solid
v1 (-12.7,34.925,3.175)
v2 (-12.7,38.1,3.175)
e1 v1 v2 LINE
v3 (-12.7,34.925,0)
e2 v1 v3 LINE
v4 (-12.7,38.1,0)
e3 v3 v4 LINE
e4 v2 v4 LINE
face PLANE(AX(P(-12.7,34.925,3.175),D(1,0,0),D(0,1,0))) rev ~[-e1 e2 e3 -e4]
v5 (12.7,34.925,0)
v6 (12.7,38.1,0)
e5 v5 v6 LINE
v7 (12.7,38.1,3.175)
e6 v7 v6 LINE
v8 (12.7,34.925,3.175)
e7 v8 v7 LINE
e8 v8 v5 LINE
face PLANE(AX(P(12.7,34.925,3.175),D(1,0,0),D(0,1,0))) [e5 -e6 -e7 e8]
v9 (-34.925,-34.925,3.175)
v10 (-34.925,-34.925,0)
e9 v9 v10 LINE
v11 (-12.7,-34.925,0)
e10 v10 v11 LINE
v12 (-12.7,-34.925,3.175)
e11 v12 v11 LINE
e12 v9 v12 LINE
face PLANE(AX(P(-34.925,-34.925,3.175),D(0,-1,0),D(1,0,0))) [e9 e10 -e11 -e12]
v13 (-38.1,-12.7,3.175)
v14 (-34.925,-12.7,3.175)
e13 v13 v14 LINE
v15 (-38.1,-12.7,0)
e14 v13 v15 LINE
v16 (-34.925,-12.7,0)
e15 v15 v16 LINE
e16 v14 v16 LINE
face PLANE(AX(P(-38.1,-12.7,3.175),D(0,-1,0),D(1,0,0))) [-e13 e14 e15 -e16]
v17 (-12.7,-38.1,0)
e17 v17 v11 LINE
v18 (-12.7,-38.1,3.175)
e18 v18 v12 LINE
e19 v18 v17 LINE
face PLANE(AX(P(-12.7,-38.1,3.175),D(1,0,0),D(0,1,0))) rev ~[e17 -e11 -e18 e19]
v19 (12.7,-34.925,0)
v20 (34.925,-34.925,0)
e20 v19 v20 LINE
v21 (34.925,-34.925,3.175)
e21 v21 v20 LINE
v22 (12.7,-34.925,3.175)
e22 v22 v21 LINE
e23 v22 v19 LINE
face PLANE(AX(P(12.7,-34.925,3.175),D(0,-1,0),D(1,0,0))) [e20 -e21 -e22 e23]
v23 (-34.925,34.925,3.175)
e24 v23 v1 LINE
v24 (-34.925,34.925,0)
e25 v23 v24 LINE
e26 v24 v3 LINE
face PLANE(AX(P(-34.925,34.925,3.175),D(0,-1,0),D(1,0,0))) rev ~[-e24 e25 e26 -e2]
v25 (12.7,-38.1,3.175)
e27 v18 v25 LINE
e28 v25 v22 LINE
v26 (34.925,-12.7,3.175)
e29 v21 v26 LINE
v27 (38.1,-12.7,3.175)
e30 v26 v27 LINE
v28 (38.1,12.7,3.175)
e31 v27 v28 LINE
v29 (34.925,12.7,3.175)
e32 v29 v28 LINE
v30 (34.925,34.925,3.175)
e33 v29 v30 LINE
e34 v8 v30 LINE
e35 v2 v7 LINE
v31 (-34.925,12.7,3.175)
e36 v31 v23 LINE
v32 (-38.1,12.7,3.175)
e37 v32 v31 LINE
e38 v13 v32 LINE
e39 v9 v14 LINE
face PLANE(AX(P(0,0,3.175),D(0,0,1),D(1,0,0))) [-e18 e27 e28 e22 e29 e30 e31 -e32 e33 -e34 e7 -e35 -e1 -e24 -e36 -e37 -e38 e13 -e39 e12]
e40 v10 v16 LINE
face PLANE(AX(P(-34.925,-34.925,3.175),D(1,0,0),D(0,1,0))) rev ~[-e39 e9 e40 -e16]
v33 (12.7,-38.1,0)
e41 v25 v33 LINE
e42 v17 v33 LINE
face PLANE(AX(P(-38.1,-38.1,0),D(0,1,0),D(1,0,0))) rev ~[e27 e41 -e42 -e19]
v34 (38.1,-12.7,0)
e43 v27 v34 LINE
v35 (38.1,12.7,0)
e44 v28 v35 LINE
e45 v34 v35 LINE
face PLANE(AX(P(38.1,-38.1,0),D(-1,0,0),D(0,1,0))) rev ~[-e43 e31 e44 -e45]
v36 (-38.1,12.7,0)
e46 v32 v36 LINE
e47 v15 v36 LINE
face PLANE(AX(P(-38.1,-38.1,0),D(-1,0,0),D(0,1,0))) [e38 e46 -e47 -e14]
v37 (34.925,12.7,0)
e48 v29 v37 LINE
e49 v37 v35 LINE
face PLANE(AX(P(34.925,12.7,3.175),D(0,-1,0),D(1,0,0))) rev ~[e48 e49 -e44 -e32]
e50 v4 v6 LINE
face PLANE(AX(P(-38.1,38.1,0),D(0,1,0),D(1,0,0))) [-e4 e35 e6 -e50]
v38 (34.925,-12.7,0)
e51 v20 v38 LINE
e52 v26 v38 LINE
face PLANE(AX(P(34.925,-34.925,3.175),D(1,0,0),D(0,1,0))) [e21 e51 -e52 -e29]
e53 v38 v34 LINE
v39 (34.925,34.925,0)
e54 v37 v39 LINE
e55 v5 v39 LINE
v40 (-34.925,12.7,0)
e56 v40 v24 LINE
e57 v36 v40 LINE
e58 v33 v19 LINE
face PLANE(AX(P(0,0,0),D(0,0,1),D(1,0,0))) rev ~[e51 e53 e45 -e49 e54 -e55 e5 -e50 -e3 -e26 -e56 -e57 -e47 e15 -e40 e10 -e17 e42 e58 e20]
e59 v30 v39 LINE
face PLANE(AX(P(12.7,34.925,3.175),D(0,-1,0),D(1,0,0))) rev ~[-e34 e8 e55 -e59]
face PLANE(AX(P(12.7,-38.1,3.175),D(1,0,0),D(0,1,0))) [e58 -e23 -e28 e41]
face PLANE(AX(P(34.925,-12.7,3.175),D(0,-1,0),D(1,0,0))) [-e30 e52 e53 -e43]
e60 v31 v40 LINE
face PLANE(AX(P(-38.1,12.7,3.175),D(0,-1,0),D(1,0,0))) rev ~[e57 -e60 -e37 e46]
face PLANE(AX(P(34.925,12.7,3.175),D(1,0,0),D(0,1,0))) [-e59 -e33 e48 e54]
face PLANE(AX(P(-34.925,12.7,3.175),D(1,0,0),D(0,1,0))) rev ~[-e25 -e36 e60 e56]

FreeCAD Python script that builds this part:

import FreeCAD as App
import Part
import Sketcher
Q = App.Units.Quantity

doc = App.newDocument("Part")
body = doc.addObject("PartDesign::Body", "Body")

# Sketch on XY plane
sketch1 = doc.addObject("Sketcher::SketchObject", "Sketch")
body.addObject(sketch1)
sketch1.AttachmentSupport = (doc.XY_Plane, [""])
sketch1.MapMode = "FlatFace"
sketch1.addGeometry(Part.LineSegment(App.Vector(-38, 38, 0), App.Vector(-38, -38, 0)), False)
sketch1.addGeometry(Part.LineSegment(App.Vector(-38, -38, 0), App.Vector(38, -38, 0)), False)
sketch1.addGeometry(Part.LineSegment(App.Vector(38, -38, 0), App.Vector(38, 38, 0)), False)
sketch1.addGeometry(Part.LineSegment(App.Vector(38, 38, 0), App.Vector(-38, 38, 0)), False)
sketch1.addConstraint(Sketcher.Constraint("Coincident", 0, 2, 1, 1))
sketch1.addConstraint(Sketcher.Constraint("Coincident", 1, 2, 2, 1))
sketch1.addConstraint(Sketcher.Constraint("Coincident", 2, 2, 3, 1))
sketch1.addConstraint(Sketcher.Constraint("Coincident", 3, 2, 0, 1))
sketch1.addConstraint(Sketcher.Constraint("Vertical", 0))
sketch1.addConstraint(Sketcher.Constraint("Horizontal", 1))
sketch1.addConstraint(Sketcher.Constraint("Vertical", 2))
sketch1.addConstraint(Sketcher.Constraint("Horizontal", 3))
sketch1.addConstraint(Sketcher.Constraint("Symmetric", 0, 2, 2, 2, -1, 1))
sketch1.addConstraint(Sketcher.Constraint("Equal", 3, 0))
sketch1.addConstraint(Sketcher.Constraint("DistanceX", 1, 1, 1, 2, Q("3 in")))
pad1 = doc.addObject("PartDesign::Pad", "Pad")
body.addObject(pad1)
pad1.Profile = sketch1
pad1.Length = Q("0.125 in")

# Sketch on XY plane
sketch2 = doc.addObject("Sketcher::SketchObject", "Sketch001")
body.addObject(sketch2)
sketch2.AttachmentSupport = (doc.XY_Plane, [""])
sketch2.MapMode = "FlatFace"
sketch2.AttachmentOffset = App.Placement(App.Vector(0, 0, 0.125 * 25.4), App.Rotation())
sketch2.addGeometry(Part.LineSegment(App.Vector(-38.1, 38.1, 0), App.Vector(-38.1, 12.7, 0)), False)
sketch2.addGeometry(Part.LineSegment(App.Vector(-38.1, 12.7, 0), App.Vector(-34.9, 12.7, 0)), False)
sketch2.addGeometry(Part.LineSegment(App.Vector(-34.9, 12.7, 0), App.Vector(-34.9, 34.9, 0)), False)
sketch2.addGeometry(Part.LineSegment(App.Vector(-34.9, 34.9, 0), App.Vector(-12.7, 34.9, 0)), False)
sketch2.addGeometry(Part.LineSegment(App.Vector(-12.7, 34.9, 0), App.Vector(-12.7, 38.1, 0)), False)
sketch2.addGeometry(Part.LineSegment(App.Vector(-12.7, 38.1, 0), App.Vector(-38.1, 38.1, 0)), False)
sketch2.addGeometry(Part.LineSegment(App.Vector(-38.1, -12.7, 0), App.Vector(-38.1, -38.1, 0)), False)
sketch2.addGeometry(Part.LineSegment(App.Vector(-38.1, -38.1, 0), App.Vector(-12.7, -38.1, 0)), False)
sketch2.addGeometry(Part.LineSegment(App.Vector(-12.7, -38.1, 0), App.Vector(-12.7, -34.9, 0)), False)
sketch2.addGeometry(Part.LineSegment(App.Vector(-12.7, -34.9, 0), App.Vector(-34.9, -34.9, 0)), False)
sketch2.addGeometry(Part.LineSegment(App.Vector(-34.9, -34.9, 0), App.Vector(-34.9, -12.7, 0)), False)
sketch2.addGeometry(Part.LineSegment(App.Vector(-34.9, -12.7, 0), App.Vector(-38.1, -12.7, 0)), False)
sketch2.addGeometry(Part.LineSegment(App.Vector(12.7, -34.9, 0), App.Vector(12.7, -38.1, 0)), False)
sketch2.addGeometry(Part.LineSegment(App.Vector(12.7, -38.1, 0), App.Vector(38.1, -38.1, 0)), False)
sketch2.addGeometry(Part.LineSegment(App.Vector(38.1, -38.1, 0), App.Vector(38.1, -12.7, 0)), False)
sketch2.addGeometry(Part.LineSegment(App.Vector(38.1, -12.7, 0), App.Vector(34.9, -12.7, 0)), False)
sketch2.addGeometry(Part.LineSegment(App.Vector(34.9, -12.7, 0), App.Vector(34.9, -34.9, 0)), False)
sketch2.addGeometry(Part.LineSegment(App.Vector(34.9, -34.9, 0), App.Vector(12.7, -34.9, 0)), False)
sketch2.addGeometry(Part.LineSegment(App.Vector(34.9, 34.9, 0), App.Vector(34.9, 12.7, 0)), False)
sketch2.addGeometry(Part.LineSegment(App.Vector(34.9, 12.7, 0), App.Vector(38.1, 12.7, 0)), False)
sketch2.addGeometry(Part.LineSegment(App.Vector(38.1, 12.7, 0), App.Vector(38.1, 38.1, 0)), False)
sketch2.addGeometry(Part.LineSegment(App.Vector(38.1, 38.1, 0), App.Vector(12.7, 38.1, 0)), False)
sketch2.addGeometry(Part.LineSegment(App.Vector(12.7, 38.1, 0), App.Vector(12.7, 34.9, 0)), False)
sketch2.addGeometry(Part.LineSegment(App.Vector(12.7, 34.9, 0), App.Vector(34.9, 34.9, 0)), False)
sketch2.addConstraint(Sketcher.Constraint("Coincident", 0, 2, 1, 1))
sketch2.addConstraint(Sketcher.Constraint("Coincident", 1, 2, 2, 1))
sketch2.addConstraint(Sketcher.Constraint("Coincident", 2, 2, 3, 1))
sketch2.addConstraint(Sketcher.Constraint("Coincident", 3, 2, 4, 1))
sketch2.addConstraint(Sketcher.Constraint("Coincident", 4, 2, 5, 1))
sketch2.addConstraint(Sketcher.Constraint("Coincident", 5, 2, 0, 1))
sketch2.addConstraint(Sketcher.Constraint("Coincident", 6, 2, 7, 1))
sketch2.addConstraint(Sketcher.Constraint("Coincident", 7, 2, 8, 1))
sketch2.addConstraint(Sketcher.Constraint("Coincident", 8, 2, 9, 1))
sketch2.addConstraint(Sketcher.Constraint("Coincident", 9, 2, 10, 1))
sketch2.addConstraint(Sketcher.Constraint("Coincident", 10, 2, 11, 1))
sketch2.addConstraint(Sketcher.Constraint("Coincident", 11, 2, 6, 1))
sketch2.addConstraint(Sketcher.Constraint("Coincident", 12, 2, 13, 1))
sketch2.addConstraint(Sketcher.Constraint("Coincident", 13, 2, 14, 1))
sketch2.addConstraint(Sketcher.Constraint("Coincident", 14, 2, 15, 1))
sketch2.addConstraint(Sketcher.Constraint("Coincident", 15, 2, 16, 1))
sketch2.addConstraint(Sketcher.Constraint("Coincident", 16, 2, 17, 1))
sketch2.addConstraint(Sketcher.Constraint("Coincident", 17, 2, 12, 1))
sketch2.addConstraint(Sketcher.Constraint("Coincident", 18, 2, 19, 1))
sketch2.addConstraint(Sketcher.Constraint("Coincident", 19, 2, 20, 1))
sketch2.addConstraint(Sketcher.Constraint("Coincident", 20, 2, 21, 1))
sketch2.addConstraint(Sketcher.Constraint("Coincident", 21, 2, 22, 1))
sketch2.addConstraint(Sketcher.Constraint("Coincident", 22, 2, 23, 1))
sketch2.addConstraint(Sketcher.Constraint("Coincident", 23, 2, 18, 1))
sketch2.addConstraint(Sketcher.Constraint("Vertical", 0))
sketch2.addConstraint(Sketcher.Constraint("Horizontal", 1))
sketch2.addConstraint(Sketcher.Constraint("Vertical", 2))
sketch2.addConstraint(Sketcher.Constraint("Horizontal", 3))
sketch2.addConstraint(Sketcher.Constraint("Vertical", 4))
sketch2.addConstraint(Sketcher.Constraint("Horizontal", 5))
sketch2.addConstraint(Sketcher.Constraint("Vertical", 6))
sketch2.addConstraint(Sketcher.Constraint("Horizontal", 7))
sketch2.addConstraint(Sketcher.Constraint("Vertical", 8))
sketch2.addConstraint(Sketcher.Constraint("Horizontal", 9))
sketch2.addConstraint(Sketcher.Constraint("Vertical", 10))
sketch2.addConstraint(Sketcher.Constraint("Horizontal", 11))
sketch2.addConstraint(Sketcher.Constraint("Vertical", 12))
sketch2.addConstraint(Sketcher.Constraint("Horizontal", 13))
sketch2.addConstraint(Sketcher.Constraint("Vertical", 14))
sketch2.addConstraint(Sketcher.Constraint("Horizontal", 15))
sketch2.addConstraint(Sketcher.Constraint("Vertical", 16))
sketch2.addConstraint(Sketcher.Constraint("Horizontal", 17))
sketch2.addConstraint(Sketcher.Constraint("Vertical", 18))
sketch2.addConstraint(Sketcher.Constraint("Horizontal", 19))
sketch2.addConstraint(Sketcher.Constraint("Vertical", 20))
sketch2.addConstraint(Sketcher.Constraint("Horizontal", 21))
sketch2.addConstraint(Sketcher.Constraint("Vertical", 22))
sketch2.addConstraint(Sketcher.Constraint("Horizontal", 23))
sketch2.addConstraint(Sketcher.Constraint("Symmetric", 4, 2, 12, 2, -1, 1))
sketch2.addConstraint(Sketcher.Constraint("Symmetric", 0, 2, 14, 2, -1, 1))
sketch2.addConstraint(Sketcher.Constraint("Symmetric", 2, 2, 16, 2, -1, 1))
sketch2.addConstraint(Sketcher.Constraint("Symmetric", 10, 2, 18, 2, -1, 1))
sketch2.addConstraint(Sketcher.Constraint("Symmetric", 6, 2, 20, 2, -1, 1))
sketch2.addConstraint(Sketcher.Constraint("Symmetric", 8, 2, 22, 2, -1, 1))
sketch2.addConstraint(Sketcher.Constraint("Symmetric", 7, 2, 12, 2, -2))
sketch2.addConstraint(Sketcher.Constraint("Symmetric", 11, 2, 14, 2, -2))
sketch2.addConstraint(Sketcher.Constraint("Symmetric", 9, 2, 16, 2, -2))
sketch2.addConstraint(Sketcher.Constraint("Equal", 21, 0))
sketch2.addConstraint(Sketcher.Constraint("Equal", 23, 2))
sketch2.addConstraint(Sketcher.Constraint("DistanceX", 5, 2, 5, 1, Q("1 in")))
sketch2.addConstraint(Sketcher.Constraint("DistanceY", 6, 2, 0, 2, Q("2 in")))
sketch2.addConstraint(Sketcher.Constraint("DistanceX", 7, 2, 12, 2, Q("1 in")))
sketch2.addConstraint(Sketcher.Constraint("DistanceX", 1, 1, 1, 2, Q("0.125 in")))
pocket1 = doc.addObject("PartDesign::Pocket", "Pocket")
body.addObject(pocket1)
pocket1.Profile = sketch2
pocket1.Length = Q("1 in")

doc.recompute()
